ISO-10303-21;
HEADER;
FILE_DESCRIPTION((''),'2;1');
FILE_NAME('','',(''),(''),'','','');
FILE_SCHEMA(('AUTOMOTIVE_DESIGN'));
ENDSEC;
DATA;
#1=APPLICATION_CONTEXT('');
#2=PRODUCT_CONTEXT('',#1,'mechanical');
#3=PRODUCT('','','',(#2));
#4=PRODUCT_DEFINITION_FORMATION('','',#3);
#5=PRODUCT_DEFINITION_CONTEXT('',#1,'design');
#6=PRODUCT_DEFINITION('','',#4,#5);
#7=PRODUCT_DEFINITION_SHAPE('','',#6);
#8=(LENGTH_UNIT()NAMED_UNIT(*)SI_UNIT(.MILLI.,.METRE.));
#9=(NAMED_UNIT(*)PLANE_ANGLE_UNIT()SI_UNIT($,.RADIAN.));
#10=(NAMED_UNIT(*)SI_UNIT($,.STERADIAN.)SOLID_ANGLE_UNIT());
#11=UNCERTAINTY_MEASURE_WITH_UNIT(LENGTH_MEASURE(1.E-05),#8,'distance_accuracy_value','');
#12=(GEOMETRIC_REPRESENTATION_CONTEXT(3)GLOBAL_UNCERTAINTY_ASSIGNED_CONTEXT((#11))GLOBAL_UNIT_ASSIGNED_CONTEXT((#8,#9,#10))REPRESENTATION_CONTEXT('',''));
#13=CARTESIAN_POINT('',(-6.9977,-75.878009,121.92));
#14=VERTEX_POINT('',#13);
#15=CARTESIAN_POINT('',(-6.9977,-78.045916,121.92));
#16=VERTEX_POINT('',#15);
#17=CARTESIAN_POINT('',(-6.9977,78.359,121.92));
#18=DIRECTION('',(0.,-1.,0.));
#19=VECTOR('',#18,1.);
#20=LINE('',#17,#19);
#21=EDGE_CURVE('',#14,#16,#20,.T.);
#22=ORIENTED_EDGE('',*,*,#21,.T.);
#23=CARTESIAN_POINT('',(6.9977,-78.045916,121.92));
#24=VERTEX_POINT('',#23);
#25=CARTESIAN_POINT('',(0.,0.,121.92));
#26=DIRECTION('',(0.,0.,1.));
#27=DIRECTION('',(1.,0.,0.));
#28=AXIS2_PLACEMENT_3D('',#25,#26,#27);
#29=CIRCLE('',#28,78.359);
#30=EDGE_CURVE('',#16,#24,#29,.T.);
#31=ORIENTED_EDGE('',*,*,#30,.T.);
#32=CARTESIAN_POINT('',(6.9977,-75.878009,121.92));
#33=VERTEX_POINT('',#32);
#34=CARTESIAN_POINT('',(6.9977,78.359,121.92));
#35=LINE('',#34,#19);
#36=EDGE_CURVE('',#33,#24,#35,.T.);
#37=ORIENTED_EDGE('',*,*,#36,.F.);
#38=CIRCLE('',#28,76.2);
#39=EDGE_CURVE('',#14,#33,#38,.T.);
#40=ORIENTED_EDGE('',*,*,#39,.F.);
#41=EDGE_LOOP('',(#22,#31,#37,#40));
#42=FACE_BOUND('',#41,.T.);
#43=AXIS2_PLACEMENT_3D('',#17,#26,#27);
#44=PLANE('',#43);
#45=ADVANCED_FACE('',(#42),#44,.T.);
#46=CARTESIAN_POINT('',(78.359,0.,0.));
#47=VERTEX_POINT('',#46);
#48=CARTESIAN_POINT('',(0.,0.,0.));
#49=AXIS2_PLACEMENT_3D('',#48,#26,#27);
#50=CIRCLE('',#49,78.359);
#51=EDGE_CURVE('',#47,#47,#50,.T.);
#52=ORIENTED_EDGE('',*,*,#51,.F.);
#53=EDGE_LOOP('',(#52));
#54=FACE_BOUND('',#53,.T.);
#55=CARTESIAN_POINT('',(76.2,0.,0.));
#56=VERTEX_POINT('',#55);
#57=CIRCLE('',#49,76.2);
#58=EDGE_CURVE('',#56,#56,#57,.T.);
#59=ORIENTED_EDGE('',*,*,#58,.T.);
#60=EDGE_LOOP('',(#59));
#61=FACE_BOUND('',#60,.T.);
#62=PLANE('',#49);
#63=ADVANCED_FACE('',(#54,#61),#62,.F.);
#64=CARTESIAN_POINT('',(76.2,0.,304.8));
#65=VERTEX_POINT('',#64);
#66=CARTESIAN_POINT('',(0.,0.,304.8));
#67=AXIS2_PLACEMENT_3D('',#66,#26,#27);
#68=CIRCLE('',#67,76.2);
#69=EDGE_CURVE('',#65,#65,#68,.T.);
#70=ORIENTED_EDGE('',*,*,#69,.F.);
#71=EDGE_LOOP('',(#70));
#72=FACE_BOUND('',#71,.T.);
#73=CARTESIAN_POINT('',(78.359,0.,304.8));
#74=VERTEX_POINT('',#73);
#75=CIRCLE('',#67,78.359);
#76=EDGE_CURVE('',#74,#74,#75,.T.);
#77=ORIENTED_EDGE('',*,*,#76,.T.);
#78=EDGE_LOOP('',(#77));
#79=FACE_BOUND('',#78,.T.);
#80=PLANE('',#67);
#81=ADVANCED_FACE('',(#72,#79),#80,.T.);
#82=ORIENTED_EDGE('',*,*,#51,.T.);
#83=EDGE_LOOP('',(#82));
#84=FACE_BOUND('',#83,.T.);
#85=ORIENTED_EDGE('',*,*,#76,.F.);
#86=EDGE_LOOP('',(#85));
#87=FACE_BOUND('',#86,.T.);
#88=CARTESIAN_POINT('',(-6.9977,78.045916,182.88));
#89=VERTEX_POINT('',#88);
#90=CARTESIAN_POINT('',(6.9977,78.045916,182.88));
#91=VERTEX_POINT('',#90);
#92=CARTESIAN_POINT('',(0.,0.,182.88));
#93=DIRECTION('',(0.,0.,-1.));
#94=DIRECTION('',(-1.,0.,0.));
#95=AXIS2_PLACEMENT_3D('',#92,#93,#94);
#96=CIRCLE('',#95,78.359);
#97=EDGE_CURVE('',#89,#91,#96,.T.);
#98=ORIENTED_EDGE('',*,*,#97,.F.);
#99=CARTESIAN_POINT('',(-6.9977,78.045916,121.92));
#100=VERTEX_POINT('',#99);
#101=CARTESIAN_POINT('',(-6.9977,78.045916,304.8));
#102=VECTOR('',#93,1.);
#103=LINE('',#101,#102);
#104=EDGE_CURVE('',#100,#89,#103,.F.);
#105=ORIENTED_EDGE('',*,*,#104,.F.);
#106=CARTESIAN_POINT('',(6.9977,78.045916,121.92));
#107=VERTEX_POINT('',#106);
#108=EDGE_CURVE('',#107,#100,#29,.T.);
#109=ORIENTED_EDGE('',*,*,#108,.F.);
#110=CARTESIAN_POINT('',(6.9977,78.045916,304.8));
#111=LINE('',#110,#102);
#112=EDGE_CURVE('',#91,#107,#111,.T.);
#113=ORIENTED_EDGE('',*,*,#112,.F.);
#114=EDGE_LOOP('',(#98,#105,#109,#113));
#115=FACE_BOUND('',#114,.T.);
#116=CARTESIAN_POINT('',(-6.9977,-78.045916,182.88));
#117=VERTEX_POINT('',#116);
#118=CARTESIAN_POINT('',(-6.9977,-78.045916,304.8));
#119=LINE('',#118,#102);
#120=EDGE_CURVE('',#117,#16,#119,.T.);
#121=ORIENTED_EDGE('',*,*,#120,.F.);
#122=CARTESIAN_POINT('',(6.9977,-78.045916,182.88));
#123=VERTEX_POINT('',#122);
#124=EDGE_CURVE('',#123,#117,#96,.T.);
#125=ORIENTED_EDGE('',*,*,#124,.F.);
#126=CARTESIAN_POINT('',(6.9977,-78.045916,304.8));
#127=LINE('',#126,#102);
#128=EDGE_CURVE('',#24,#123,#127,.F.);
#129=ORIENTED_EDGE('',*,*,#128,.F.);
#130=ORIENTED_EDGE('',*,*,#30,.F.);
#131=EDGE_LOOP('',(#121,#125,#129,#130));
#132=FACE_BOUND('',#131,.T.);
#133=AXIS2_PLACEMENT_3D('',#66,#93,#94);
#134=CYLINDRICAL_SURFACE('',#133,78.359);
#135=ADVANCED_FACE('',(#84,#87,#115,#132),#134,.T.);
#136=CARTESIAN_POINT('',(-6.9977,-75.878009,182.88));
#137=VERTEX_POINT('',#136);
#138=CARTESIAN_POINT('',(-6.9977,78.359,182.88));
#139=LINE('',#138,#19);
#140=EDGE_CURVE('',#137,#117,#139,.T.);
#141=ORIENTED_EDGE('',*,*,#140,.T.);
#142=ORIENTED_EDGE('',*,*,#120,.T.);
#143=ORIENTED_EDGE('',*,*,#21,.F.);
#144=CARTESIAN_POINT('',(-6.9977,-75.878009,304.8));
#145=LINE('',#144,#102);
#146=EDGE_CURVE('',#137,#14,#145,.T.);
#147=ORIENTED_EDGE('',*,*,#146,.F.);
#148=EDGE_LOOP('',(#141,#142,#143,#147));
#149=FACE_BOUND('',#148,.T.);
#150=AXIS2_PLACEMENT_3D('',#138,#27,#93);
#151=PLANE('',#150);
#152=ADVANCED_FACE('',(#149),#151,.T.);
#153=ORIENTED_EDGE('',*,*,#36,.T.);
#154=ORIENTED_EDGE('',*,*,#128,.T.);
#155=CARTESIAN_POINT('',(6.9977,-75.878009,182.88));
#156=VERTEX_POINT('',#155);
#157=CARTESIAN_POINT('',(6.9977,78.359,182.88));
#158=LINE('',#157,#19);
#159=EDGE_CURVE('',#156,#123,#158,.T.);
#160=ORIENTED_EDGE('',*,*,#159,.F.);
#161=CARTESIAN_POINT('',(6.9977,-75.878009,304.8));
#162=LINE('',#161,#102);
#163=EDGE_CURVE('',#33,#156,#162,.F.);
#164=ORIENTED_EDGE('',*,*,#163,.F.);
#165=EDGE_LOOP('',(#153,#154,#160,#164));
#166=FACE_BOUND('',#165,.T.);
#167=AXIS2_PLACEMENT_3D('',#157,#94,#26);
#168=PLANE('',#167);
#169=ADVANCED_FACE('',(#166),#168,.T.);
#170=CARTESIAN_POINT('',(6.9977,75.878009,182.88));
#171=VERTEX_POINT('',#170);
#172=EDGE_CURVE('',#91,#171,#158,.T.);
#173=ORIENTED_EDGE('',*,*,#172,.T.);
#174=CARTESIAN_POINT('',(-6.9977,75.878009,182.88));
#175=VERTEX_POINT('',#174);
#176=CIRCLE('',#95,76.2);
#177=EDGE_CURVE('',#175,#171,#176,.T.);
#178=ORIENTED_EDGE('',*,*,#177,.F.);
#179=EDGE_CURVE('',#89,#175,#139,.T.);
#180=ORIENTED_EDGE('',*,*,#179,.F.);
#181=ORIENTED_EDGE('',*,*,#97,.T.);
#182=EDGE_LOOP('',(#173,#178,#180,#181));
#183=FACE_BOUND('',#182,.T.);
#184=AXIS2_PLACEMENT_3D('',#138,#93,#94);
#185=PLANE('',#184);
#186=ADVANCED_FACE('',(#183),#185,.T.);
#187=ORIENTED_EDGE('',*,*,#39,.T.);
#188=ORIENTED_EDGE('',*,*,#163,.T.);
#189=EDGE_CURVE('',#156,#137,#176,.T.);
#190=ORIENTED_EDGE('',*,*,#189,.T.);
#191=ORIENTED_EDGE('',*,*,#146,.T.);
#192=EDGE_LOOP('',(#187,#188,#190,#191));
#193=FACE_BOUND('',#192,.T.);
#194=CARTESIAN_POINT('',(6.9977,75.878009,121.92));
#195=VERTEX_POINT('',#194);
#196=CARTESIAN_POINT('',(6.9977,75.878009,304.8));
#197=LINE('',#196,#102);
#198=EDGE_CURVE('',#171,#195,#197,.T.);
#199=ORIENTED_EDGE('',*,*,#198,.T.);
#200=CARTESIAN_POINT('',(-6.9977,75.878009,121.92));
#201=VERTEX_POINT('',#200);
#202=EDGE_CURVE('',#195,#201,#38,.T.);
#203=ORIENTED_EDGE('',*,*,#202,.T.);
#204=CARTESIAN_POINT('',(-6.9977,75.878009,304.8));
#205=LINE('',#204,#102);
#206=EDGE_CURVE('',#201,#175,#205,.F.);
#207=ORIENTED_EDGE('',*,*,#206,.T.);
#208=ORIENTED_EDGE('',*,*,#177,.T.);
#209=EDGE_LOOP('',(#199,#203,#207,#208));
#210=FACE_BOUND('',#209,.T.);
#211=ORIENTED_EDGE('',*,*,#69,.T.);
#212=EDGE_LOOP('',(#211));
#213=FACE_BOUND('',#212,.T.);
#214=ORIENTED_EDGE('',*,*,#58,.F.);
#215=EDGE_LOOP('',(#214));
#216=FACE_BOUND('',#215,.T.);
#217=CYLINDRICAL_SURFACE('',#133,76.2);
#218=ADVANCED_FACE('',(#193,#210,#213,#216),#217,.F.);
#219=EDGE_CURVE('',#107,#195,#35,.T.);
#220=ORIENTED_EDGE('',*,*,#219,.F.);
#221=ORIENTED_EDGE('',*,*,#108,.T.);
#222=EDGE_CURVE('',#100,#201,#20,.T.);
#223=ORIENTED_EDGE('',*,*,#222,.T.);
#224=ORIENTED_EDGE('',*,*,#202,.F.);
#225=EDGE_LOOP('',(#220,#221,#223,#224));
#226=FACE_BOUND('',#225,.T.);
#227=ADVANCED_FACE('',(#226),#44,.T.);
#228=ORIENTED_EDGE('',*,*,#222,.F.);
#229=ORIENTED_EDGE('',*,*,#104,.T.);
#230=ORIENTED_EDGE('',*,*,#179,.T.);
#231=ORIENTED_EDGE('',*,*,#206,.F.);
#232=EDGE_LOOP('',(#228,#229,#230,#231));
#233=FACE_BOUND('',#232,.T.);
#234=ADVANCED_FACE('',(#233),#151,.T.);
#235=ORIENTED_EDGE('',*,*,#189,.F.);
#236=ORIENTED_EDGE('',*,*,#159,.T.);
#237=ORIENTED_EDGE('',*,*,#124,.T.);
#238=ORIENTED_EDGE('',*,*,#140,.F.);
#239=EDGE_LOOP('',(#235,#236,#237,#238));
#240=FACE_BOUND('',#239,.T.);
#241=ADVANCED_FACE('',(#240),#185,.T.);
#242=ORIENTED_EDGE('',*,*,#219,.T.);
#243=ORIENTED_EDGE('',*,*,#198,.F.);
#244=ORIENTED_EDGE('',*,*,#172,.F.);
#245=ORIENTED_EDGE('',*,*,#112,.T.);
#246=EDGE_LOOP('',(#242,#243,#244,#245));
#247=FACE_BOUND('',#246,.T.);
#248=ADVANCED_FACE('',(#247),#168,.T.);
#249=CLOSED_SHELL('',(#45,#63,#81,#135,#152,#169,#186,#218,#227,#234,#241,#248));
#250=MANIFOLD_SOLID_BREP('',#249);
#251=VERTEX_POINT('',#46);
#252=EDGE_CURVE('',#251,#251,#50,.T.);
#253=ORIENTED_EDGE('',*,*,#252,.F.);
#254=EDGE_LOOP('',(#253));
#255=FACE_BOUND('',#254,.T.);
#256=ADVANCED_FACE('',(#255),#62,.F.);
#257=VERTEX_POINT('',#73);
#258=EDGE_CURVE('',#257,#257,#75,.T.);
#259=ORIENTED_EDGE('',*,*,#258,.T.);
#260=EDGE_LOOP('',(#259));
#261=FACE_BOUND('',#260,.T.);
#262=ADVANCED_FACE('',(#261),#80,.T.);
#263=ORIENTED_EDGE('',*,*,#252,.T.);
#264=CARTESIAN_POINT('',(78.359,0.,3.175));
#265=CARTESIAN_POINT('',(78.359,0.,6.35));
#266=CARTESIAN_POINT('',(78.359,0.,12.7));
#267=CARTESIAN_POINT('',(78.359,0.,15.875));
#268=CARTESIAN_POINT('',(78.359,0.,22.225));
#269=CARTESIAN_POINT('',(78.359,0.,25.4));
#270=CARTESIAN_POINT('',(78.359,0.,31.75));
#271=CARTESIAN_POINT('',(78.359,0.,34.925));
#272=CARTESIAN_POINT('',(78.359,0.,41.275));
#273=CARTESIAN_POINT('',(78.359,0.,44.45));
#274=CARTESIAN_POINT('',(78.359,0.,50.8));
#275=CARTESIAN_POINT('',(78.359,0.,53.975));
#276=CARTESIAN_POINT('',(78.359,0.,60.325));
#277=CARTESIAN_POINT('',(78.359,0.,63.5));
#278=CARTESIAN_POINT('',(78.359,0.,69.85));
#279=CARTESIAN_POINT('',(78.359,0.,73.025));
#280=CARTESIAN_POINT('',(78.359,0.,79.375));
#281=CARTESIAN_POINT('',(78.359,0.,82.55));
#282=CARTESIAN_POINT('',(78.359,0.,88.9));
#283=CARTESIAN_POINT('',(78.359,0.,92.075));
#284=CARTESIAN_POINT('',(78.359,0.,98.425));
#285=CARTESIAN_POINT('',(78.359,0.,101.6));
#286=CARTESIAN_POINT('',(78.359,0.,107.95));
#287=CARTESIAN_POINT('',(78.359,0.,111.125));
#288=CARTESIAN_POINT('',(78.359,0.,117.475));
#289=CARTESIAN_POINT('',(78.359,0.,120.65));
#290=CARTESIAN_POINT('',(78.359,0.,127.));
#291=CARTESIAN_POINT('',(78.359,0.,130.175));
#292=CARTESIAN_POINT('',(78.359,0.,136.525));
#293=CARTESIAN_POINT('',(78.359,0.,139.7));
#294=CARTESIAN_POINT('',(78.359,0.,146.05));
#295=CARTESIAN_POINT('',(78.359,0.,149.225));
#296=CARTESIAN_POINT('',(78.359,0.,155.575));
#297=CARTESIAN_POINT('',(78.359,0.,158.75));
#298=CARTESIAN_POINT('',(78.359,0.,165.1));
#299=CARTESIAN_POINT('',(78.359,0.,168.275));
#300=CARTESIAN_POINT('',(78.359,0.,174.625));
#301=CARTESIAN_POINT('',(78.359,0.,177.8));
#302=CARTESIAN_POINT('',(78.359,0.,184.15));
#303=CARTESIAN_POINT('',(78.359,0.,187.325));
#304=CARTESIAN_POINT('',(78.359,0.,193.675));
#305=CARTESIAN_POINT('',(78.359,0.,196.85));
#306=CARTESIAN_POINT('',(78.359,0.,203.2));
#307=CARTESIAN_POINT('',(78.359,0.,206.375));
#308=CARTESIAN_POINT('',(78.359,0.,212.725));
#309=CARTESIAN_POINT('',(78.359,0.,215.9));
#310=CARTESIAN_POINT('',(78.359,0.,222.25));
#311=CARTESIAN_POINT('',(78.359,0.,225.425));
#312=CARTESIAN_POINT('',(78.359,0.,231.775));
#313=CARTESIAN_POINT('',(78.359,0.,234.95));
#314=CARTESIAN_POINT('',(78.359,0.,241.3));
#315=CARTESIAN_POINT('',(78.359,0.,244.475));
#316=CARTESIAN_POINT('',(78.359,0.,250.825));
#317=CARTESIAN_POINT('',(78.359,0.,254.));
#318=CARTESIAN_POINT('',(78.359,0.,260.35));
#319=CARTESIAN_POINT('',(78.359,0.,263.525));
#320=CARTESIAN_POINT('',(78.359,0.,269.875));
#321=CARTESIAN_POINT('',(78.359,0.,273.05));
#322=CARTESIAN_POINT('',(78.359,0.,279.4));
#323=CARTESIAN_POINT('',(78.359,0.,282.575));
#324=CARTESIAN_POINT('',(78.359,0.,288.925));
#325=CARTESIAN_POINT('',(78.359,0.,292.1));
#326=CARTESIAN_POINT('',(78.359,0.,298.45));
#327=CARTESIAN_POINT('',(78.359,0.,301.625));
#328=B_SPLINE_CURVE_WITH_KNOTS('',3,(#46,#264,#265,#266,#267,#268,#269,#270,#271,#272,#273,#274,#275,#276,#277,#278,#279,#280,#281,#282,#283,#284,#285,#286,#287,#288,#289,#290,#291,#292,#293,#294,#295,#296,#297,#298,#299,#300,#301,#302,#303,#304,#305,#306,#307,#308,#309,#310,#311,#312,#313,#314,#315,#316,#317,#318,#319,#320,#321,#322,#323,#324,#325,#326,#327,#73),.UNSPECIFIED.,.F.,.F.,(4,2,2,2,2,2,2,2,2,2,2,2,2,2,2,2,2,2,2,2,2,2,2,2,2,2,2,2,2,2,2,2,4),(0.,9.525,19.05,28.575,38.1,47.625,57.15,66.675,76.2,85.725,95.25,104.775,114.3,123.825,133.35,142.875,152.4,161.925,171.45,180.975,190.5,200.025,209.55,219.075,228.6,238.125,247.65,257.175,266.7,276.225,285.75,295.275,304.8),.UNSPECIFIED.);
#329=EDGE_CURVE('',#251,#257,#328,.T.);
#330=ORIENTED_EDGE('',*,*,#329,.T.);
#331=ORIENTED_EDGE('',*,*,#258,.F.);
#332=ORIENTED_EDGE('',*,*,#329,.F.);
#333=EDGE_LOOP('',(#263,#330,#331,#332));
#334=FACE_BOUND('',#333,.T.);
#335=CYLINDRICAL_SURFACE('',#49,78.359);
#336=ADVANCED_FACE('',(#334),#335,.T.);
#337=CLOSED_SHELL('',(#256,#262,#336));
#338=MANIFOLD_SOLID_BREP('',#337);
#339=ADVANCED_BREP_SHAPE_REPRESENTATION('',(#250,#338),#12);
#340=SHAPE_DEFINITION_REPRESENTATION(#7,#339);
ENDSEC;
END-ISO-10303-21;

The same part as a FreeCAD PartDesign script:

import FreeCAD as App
import Part
import Sketcher
from FreeCAD import Vector
Q = App.Units.Quantity


def add_polygon(sketch, points):
    """Adds a closed chain of lines whose ends are joined by coincident constraints."""
    first, n = sketch.GeometryCount, len(points)
    for a, b in zip(points, points[1:] + points[:1]):
        sketch.addGeometry(Part.LineSegment(App.Vector(*a, 0), App.Vector(*b, 0)), False)
    for i in range(n):
        sketch.addConstraint(Sketcher.Constraint("Coincident", first + i, 2, first + (i + 1) % n, 1))

doc = App.newDocument("Part")
body = doc.addObject("PartDesign::Body", "Body")

sketch1 = body.newObject("Sketcher::SketchObject", "Sketch")
sketch1.AttachmentSupport = (doc.getObject("XY_Plane"), [""])
sketch1.MapMode = "FlatFace"
sketch1.addGeometry(Part.Circle(Vector(0, 0, 0), Vector(0, 0, 1), 78), False)
sketch1.addGeometry(Part.Circle(Vector(0, 0, 0), Vector(0, 0, 1), 76), False)
sketch1.addConstraint(Sketcher.Constraint("Coincident", 0, 3, -1, 1))
sketch1.addConstraint(Sketcher.Constraint("Coincident", 1, 3, -1, 1))
sketch1.addConstraint(Sketcher.Constraint("Diameter", 1, Q("6 in")))
sketch1.addConstraint(Sketcher.Constraint("Diameter", 0, Q("6.17 in")))
pad1 = body.newObject("PartDesign::Pad", "Pad")
pad1.Profile = sketch1
pad1.Length = Q("12 in")

sketch2 = body.newObject("Sketcher::SketchObject", "Sketch001")
sketch2.AttachmentSupport = (doc.getObject("XZ_Plane"), [""])
sketch2.MapMode = "FlatFace"
add_polygon(sketch2, [(-7, 122), (-7, 183), (7, 183), (7, 122)])
sketch2.addConstraint(Sketcher.Constraint("Vertical", 0))
sketch2.addConstraint(Sketcher.Constraint("Horizontal", 1))
sketch2.addConstraint(Sketcher.Constraint("Vertical", 2))
sketch2.addConstraint(Sketcher.Constraint("Horizontal", 3))
sketch2.addConstraint(Sketcher.Constraint("DistanceY", 0, 1, 0, 2, Q("2.4 in")))
sketch2.addConstraint(Sketcher.Constraint("DistanceY", -1, 1, 0, 2, Q("7.2 in")))
sketch2.addConstraint(Sketcher.Constraint("DistanceX", 1, 1, 1, 2, Q("0.551 in")))
sketch2.addConstraint(Sketcher.Constraint("DistanceX", 0, 2, -1, 1, Q("0.2755 in")))
pocket1 = body.newObject("PartDesign::Pocket", "Pocket")
pocket1.Profile = sketch2
pocket1.Type = "ThroughAll"
pocket1.Midplane = True
body2 = doc.addObject("PartDesign::Body", "Body001")

sketch3 = body2.newObject("Sketcher::SketchObject", "Sketch002")
sketch3.AttachmentSupport = (doc.getObject("XY_Plane001"), [""])
sketch3.MapMode = "FlatFace"
sketch3.AttachmentOffset = App.Placement(Vector(0, 0, 12 * 25.4), App.Rotation())
sketch3.addGeometry(Part.Circle(Vector(0, 0, 0), Vector(0, 0, 1), 78), False)
sketch3.addConstraint(Sketcher.Constraint("Coincident", 0, 3, -1, 1))
sketch3.addConstraint(Sketcher.Constraint("Diameter", 0, Q("6.17 in")))
pad2 = body2.newObject("PartDesign::Pad", "Pad001")
pad2.Profile = sketch3
pad2.Length = Q("12 in")
pad2.Reversed = True

doc.recompute()
